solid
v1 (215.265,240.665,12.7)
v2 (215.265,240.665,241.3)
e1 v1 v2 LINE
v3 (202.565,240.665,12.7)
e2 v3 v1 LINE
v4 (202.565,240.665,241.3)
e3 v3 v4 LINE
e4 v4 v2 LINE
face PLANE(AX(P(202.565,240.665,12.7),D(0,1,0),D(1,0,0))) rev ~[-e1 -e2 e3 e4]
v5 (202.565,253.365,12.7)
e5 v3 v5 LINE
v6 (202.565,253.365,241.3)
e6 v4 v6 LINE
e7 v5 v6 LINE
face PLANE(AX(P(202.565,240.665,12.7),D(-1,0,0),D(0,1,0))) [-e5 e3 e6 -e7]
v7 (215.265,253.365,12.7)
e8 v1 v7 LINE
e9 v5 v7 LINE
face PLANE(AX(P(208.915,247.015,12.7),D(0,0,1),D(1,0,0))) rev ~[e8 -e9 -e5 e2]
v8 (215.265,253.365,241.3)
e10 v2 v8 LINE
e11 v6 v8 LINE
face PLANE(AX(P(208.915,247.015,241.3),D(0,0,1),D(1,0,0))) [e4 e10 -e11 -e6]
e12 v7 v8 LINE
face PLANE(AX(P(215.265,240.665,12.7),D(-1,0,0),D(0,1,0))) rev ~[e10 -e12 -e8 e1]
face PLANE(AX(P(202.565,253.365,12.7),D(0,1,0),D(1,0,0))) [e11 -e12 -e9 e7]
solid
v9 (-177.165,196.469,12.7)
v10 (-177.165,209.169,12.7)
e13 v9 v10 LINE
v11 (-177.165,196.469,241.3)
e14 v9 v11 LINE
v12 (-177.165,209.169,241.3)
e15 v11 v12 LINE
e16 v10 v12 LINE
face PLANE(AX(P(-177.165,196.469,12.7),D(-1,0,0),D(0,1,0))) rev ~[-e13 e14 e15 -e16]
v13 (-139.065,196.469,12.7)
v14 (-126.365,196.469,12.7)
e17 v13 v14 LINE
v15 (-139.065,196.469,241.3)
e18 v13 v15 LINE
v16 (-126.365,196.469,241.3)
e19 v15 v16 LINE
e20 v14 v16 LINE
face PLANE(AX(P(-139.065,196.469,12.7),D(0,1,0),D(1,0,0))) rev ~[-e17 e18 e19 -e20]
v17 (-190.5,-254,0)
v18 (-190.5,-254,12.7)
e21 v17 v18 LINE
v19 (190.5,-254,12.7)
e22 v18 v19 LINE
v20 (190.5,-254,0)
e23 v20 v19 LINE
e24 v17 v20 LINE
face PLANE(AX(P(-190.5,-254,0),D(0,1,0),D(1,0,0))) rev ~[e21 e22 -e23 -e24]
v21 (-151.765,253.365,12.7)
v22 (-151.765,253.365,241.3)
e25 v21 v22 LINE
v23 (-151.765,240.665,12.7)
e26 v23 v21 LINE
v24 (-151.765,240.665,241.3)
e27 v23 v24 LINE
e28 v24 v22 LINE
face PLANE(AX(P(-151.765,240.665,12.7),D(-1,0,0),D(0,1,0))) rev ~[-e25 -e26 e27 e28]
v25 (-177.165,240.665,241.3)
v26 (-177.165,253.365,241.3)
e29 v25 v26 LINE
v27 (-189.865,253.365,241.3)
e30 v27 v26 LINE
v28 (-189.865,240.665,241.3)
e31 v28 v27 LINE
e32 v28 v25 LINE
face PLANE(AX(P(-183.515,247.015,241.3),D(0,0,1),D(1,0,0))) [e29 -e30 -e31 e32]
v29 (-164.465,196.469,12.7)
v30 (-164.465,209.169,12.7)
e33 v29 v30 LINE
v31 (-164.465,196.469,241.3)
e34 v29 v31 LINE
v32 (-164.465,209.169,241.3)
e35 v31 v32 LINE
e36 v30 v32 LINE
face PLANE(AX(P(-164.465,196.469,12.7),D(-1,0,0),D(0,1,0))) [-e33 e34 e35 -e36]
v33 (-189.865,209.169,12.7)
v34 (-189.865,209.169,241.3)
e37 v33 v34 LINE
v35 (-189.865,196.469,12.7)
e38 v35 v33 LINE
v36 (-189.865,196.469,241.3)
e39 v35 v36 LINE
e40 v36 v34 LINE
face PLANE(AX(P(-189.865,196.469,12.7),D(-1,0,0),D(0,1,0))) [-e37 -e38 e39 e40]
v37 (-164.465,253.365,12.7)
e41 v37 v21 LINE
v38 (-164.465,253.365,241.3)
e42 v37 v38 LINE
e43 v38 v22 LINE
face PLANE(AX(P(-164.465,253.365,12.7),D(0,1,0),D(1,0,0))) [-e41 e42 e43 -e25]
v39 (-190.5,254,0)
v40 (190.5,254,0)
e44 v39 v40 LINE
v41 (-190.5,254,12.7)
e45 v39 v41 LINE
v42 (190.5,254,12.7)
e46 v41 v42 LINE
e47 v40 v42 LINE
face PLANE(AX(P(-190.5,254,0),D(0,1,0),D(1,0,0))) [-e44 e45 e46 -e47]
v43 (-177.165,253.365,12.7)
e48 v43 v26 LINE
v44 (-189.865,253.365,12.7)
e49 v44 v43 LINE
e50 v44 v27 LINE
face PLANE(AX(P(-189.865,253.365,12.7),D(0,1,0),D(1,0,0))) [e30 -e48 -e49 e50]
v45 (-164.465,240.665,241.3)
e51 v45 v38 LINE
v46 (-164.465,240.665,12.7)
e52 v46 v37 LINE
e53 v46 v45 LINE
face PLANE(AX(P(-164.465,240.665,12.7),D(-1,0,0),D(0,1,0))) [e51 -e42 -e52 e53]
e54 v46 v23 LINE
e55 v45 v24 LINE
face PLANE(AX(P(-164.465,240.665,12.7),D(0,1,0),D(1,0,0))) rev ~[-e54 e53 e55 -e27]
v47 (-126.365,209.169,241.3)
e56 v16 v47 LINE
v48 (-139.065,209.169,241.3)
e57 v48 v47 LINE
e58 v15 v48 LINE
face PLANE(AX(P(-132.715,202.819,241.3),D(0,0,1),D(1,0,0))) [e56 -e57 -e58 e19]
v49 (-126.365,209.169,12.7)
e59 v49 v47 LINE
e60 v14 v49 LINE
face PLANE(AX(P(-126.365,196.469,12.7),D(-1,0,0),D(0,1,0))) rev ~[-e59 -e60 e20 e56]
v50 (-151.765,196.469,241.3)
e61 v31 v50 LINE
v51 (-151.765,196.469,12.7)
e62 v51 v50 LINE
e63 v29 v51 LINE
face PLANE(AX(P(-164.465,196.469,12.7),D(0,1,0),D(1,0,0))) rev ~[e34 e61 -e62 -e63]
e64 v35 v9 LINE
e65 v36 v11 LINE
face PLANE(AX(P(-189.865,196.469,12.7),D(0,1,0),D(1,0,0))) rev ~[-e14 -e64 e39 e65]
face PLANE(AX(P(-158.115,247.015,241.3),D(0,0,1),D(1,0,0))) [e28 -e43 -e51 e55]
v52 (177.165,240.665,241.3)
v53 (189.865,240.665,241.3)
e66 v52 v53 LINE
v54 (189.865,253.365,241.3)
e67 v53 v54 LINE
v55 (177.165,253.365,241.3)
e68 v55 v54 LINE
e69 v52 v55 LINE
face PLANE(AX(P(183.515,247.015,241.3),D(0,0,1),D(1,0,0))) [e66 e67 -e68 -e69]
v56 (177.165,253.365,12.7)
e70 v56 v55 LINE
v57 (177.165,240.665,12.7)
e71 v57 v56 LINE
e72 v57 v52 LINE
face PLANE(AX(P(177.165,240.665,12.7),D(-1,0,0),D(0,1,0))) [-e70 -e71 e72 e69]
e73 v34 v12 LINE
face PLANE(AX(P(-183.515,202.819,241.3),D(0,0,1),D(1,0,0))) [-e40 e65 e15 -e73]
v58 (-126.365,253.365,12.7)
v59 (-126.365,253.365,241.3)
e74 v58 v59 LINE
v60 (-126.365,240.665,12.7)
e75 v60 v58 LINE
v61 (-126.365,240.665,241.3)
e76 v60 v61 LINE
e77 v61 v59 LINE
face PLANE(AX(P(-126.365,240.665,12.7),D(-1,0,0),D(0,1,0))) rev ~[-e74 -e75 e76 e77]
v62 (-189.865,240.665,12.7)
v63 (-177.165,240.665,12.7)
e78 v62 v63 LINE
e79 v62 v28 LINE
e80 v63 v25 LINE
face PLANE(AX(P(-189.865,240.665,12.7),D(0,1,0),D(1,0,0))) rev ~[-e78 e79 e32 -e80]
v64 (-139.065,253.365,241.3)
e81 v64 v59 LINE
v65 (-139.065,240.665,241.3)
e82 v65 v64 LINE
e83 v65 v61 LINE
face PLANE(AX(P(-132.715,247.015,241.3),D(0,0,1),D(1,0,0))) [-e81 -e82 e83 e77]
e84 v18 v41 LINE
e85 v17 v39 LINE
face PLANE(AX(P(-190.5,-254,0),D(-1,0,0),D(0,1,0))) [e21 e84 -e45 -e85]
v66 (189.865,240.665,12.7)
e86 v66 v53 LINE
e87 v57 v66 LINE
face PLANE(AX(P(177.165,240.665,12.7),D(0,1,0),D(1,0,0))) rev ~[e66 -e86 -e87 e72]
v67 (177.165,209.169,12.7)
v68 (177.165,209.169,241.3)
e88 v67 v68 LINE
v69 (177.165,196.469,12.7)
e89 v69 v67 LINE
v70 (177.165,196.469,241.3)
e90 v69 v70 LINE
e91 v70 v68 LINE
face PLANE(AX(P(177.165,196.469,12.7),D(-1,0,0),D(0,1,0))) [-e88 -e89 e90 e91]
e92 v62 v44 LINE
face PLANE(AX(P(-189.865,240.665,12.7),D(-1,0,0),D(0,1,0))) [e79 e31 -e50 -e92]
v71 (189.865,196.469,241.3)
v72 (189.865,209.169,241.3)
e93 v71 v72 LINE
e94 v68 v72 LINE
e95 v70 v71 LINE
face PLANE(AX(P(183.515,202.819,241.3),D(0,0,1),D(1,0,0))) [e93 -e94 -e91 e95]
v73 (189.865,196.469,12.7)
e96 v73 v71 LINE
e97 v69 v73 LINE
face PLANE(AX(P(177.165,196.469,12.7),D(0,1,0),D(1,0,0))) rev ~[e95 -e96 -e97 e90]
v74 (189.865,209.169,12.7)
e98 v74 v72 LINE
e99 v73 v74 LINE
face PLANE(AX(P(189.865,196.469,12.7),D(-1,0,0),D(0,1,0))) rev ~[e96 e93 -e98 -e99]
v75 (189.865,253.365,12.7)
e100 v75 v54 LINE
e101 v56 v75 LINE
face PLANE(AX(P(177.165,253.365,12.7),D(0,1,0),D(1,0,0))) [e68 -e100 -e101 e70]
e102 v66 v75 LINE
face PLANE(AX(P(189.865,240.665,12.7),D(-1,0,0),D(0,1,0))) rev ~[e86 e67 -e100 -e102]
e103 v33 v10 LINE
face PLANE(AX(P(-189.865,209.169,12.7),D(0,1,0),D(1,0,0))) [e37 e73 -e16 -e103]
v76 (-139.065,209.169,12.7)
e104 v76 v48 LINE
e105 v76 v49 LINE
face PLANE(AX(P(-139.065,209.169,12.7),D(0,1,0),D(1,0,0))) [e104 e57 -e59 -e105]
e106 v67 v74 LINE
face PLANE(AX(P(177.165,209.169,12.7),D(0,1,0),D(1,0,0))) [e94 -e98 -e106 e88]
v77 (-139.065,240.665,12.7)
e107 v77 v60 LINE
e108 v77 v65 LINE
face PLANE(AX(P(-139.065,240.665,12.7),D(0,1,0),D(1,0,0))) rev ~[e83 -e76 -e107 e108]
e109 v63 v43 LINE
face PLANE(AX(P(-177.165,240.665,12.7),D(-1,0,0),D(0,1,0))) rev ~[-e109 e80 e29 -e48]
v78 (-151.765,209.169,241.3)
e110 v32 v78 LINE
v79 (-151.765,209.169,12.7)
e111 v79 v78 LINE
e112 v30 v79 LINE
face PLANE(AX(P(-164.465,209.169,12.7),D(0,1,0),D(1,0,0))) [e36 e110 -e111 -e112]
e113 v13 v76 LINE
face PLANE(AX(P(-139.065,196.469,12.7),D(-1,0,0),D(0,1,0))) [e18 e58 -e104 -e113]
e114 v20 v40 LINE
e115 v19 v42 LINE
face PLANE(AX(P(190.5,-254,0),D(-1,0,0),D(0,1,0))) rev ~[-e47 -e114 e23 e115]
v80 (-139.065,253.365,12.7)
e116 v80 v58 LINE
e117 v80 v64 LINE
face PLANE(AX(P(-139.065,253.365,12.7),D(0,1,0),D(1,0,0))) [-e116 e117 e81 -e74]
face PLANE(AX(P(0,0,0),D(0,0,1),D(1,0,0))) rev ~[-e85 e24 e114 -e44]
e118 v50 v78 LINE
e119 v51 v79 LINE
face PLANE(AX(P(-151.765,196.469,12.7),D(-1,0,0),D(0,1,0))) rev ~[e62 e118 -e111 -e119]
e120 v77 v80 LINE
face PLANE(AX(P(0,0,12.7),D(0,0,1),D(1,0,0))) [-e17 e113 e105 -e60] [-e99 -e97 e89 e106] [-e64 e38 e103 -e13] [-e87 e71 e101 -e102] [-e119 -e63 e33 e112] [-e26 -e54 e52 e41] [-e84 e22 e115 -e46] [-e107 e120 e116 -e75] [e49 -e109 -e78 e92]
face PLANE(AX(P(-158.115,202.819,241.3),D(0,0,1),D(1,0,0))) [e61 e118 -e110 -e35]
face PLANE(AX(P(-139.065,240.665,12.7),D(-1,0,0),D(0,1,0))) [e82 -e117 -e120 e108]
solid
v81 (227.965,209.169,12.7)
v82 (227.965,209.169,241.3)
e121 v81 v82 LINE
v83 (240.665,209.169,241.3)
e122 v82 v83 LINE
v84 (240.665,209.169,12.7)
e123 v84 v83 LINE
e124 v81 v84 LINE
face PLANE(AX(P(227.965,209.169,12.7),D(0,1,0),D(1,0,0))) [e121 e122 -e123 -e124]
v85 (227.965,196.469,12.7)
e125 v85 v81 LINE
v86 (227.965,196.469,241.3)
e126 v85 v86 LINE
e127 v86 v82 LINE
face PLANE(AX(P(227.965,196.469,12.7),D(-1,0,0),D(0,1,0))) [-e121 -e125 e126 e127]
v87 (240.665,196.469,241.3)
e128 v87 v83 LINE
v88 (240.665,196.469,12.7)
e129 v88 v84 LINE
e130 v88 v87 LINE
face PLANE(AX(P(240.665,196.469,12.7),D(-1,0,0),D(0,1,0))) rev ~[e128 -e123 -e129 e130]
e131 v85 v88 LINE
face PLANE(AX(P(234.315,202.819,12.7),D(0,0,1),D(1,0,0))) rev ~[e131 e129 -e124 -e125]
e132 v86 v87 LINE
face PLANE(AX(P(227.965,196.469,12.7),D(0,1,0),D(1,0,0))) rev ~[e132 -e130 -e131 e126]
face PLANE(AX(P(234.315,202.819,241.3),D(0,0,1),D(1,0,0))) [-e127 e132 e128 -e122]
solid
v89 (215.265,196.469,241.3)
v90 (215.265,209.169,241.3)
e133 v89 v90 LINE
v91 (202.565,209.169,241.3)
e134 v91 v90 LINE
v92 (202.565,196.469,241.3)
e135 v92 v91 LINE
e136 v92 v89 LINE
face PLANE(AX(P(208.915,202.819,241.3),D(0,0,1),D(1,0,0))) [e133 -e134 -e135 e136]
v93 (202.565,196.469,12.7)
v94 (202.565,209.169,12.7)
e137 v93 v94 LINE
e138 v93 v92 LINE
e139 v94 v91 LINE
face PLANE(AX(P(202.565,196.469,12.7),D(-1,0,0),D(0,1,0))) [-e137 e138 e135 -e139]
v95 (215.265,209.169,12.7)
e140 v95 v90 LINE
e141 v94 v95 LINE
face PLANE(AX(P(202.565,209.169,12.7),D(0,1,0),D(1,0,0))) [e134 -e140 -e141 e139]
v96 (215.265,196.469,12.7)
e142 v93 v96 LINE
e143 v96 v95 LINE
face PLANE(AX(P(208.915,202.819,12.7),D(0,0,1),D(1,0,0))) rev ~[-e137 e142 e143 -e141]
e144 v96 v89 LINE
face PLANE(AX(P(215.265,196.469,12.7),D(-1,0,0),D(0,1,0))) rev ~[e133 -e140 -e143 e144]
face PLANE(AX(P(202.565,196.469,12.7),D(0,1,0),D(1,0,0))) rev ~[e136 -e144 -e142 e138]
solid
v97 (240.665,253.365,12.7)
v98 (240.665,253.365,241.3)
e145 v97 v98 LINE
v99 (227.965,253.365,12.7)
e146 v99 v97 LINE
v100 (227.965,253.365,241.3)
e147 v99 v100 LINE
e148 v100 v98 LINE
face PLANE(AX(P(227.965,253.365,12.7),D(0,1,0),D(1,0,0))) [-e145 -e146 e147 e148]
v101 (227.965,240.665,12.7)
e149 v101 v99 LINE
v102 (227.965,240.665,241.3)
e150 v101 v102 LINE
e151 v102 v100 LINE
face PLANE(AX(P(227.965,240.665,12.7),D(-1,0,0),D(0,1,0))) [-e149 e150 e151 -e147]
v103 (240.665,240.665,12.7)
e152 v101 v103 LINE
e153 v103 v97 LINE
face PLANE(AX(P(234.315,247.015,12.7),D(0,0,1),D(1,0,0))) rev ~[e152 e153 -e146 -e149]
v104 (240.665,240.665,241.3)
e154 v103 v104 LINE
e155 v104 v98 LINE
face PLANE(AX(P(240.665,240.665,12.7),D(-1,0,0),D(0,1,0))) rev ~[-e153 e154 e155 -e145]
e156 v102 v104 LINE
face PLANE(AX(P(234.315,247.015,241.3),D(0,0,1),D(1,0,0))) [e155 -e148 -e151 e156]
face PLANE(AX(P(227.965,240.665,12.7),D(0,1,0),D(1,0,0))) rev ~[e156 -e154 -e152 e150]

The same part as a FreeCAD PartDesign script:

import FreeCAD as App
import Part
import Sketcher
Q = App.Units.Quantity

doc = App.newDocument("Part")
body = doc.addObject("PartDesign::Body", "Body")
body.AllowCompound = True

# Sketch on XY plane
sketch1 = body.newObject("Sketcher::SketchObject", "Sketch")
sketch1.AttachmentSupport = (doc.getObject("XY_Plane"), [""])
sketch1.MapMode = "FlatFace"
sketch1.addGeometry([
    Part.LineSegment(App.Vector(-190, 254, 0), App.Vector(-190, -254, 0)),
    Part.LineSegment(App.Vector(-190, -254, 0), App.Vector(190, -254, 0)),
    Part.LineSegment(App.Vector(190, -254, 0), App.Vector(190, 254, 0)),
    Part.LineSegment(App.Vector(190, 254, 0), App.Vector(-190, 254, 0)),
], False)
sketch1.addConstraint([
    Sketcher.Constraint("Coincident", 0, 2, 1, 1),
    Sketcher.Constraint("Coincident", 1, 2, 2, 1),
    Sketcher.Constraint("Coincident", 2, 2, 3, 1),
    Sketcher.Constraint("Coincident", 3, 2, 0, 1),
    Sketcher.Constraint("Vertical", 0),
    Sketcher.Constraint("Horizontal", 1),
    Sketcher.Constraint("Vertical", 2),
    Sketcher.Constraint("Horizontal", 3),
    Sketcher.Constraint("Symmetric", 0, 2, 2, 2, -1, 1),
    Sketcher.Constraint("DistanceX", 1, 1, 1, 2, Q("15 in")),
    Sketcher.Constraint("DistanceY", 0, 2, 0, 1, Q("20 in")),
])
pad1 = body.newObject("PartDesign::Pad", "Pad")
pad1.Profile = sketch1
pad1.Length = Q("0.5 in")

# Sketch on XY plane
sketch2 = body.newObject("Sketcher::SketchObject", "Sketch001")
sketch2.AttachmentSupport = (doc.getObject("XY_Plane"), [""])
sketch2.MapMode = "FlatFace"
sketch2.AttachmentOffset = App.Placement(App.Vector(0, 0, 0.5 * 25.4), App.Rotation())
sketch2.addGeometry([
    Part.LineSegment(App.Vector(-190, 253, 0), App.Vector(-190, 241, 0)),  # 0
    Part.LineSegment(App.Vector(-190, 241, 0), App.Vector(-177, 241, 0)),  # 1
    Part.LineSegment(App.Vector(-177, 241, 0), App.Vector(-177, 253, 0)),  # 2
    Part.LineSegment(App.Vector(-177, 253, 0), App.Vector(-190, 253, 0)),  # 3
    Part.LineSegment(App.Vector(177, 253, 0), App.Vector(177, 241, 0)),  # 4
    Part.LineSegment(App.Vector(177, 241, 0), App.Vector(190, 241, 0)),  # 5
    Part.LineSegment(App.Vector(190, 241, 0), App.Vector(190, 253, 0)),  # 6
    Part.LineSegment(App.Vector(190, 253, 0), App.Vector(177, 253, 0)),  # 7
    Part.LineSegment(App.Vector(-190, 209, 0), App.Vector(-190, 196, 0)),  # 8
    Part.LineSegment(App.Vector(-190, 196, 0), App.Vector(-177, 196, 0)),  # 9
    Part.LineSegment(App.Vector(-177, 196, 0), App.Vector(-177, 209, 0)),  # 10
    Part.LineSegment(App.Vector(-177, 209, 0), App.Vector(-190, 209, 0)),  # 11
    Part.LineSegment(App.Vector(177, 209, 0), App.Vector(177, 196, 0)),  # 12
    Part.LineSegment(App.Vector(177, 196, 0), App.Vector(190, 196, 0)),  # 13
    Part.LineSegment(App.Vector(190, 196, 0), App.Vector(190, 209, 0)),  # 14
    Part.LineSegment(App.Vector(190, 209, 0), App.Vector(177, 209, 0)),  # 15
    Part.LineSegment(App.Vector(-164, 253, 0), App.Vector(-164, 241, 0)),  # 16
    Part.LineSegment(App.Vector(-164, 241, 0), App.Vector(-152, 241, 0)),  # 17
    Part.LineSegment(App.Vector(-152, 241, 0), App.Vector(-152, 253, 0)),  # 18
    Part.LineSegment(App.Vector(-152, 253, 0), App.Vector(-164, 253, 0)),  # 19
    Part.LineSegment(App.Vector(203, 253, 0), App.Vector(203, 241, 0)),  # 20
    Part.LineSegment(App.Vector(203, 241, 0), App.Vector(215, 241, 0)),  # 21
    Part.LineSegment(App.Vector(215, 241, 0), App.Vector(215, 253, 0)),  # 22
    Part.LineSegment(App.Vector(215, 253, 0), App.Vector(203, 253, 0)),  # 23
    Part.LineSegment(App.Vector(-164, 209, 0), App.Vector(-164, 196, 0)),  # 24
    Part.LineSegment(App.Vector(-164, 196, 0), App.Vector(-152, 196, 0)),  # 25
    Part.LineSegment(App.Vector(-152, 196, 0), App.Vector(-152, 209, 0)),  # 26
    Part.LineSegment(App.Vector(-152, 209, 0), App.Vector(-164, 209, 0)),  # 27
    Part.LineSegment(App.Vector(203, 209, 0), App.Vector(203, 196, 0)),  # 28
    Part.LineSegment(App.Vector(203, 196, 0), App.Vector(215, 196, 0)),  # 29
    Part.LineSegment(App.Vector(215, 196, 0), App.Vector(215, 209, 0)),  # 30
    Part.LineSegment(App.Vector(215, 209, 0), App.Vector(203, 209, 0)),  # 31
    Part.LineSegment(App.Vector(-139, 253, 0), App.Vector(-139, 241, 0)),  # 32
    Part.LineSegment(App.Vector(-139, 241, 0), App.Vector(-126, 241, 0)),  # 33
    Part.LineSegment(App.Vector(-126, 241, 0), App.Vector(-126, 253, 0)),  # 34
    Part.LineSegment(App.Vector(-126, 253, 0), App.Vector(-139, 253, 0)),  # 35
    Part.LineSegment(App.Vector(228, 253, 0), App.Vector(228, 241, 0)),  # 36
    Part.LineSegment(App.Vector(228, 241, 0), App.Vector(241, 241, 0)),  # 37
    Part.LineSegment(App.Vector(241, 241, 0), App.Vector(241, 253, 0)),  # 38
    Part.LineSegment(App.Vector(241, 253, 0), App.Vector(228, 253, 0)),  # 39
    Part.LineSegment(App.Vector(-139, 209, 0), App.Vector(-139, 196, 0)),  # 40
    Part.LineSegment(App.Vector(-139, 196, 0), App.Vector(-126, 196, 0)),  # 41
    Part.LineSegment(App.Vector(-126, 196, 0), App.Vector(-126, 209, 0)),  # 42
    Part.LineSegment(App.Vector(-126, 209, 0), App.Vector(-139, 209, 0)),  # 43
    Part.LineSegment(App.Vector(228, 209, 0), App.Vector(228, 196, 0)),  # 44
    Part.LineSegment(App.Vector(228, 196, 0), App.Vector(241, 196, 0)),  # 45
    Part.LineSegment(App.Vector(241, 196, 0), App.Vector(241, 209, 0)),  # 46
    Part.LineSegment(App.Vector(241, 209, 0), App.Vector(228, 209, 0)),  # 47
], False)
sketch2.addConstraint([
    Sketcher.Constraint("Coincident", 0, 2, 1, 1),
    Sketcher.Constraint("Coincident", 1, 2, 2, 1),
    Sketcher.Constraint("Coincident", 2, 2, 3, 1),
    Sketcher.Constraint("Coincident", 3, 2, 0, 1),
    Sketcher.Constraint("Coincident", 4, 2, 5, 1),
    Sketcher.Constraint("Coincident", 5, 2, 6, 1),
    Sketcher.Constraint("Coincident", 6, 2, 7, 1),
    Sketcher.Constraint("Coincident", 7, 2, 4, 1),
    Sketcher.Constraint("Coincident", 8, 2, 9, 1),
    Sketcher.Constraint("Coincident", 9, 2, 10, 1),
    Sketcher.Constraint("Coincident", 10, 2, 11, 1),
    Sketcher.Constraint("Coincident", 11, 2, 8, 1),
    Sketcher.Constraint("Coincident", 12, 2, 13, 1),
    Sketcher.Constraint("Coincident", 13, 2, 14, 1),
    Sketcher.Constraint("Coincident", 14, 2, 15, 1),
    Sketcher.Constraint("Coincident", 15, 2, 12, 1),
    Sketcher.Constraint("Coincident", 16, 2, 17, 1),
    Sketcher.Constraint("Coincident", 17, 2, 18, 1),
    Sketcher.Constraint("Coincident", 18, 2, 19, 1),
    Sketcher.Constraint("Coincident", 19, 2, 16, 1),
    Sketcher.Constraint("Coincident", 20, 2, 21, 1),
    Sketcher.Constraint("Coincident", 21, 2, 22, 1),
    Sketcher.Constraint("Coincident", 22, 2, 23, 1),
    Sketcher.Constraint("Coincident", 23, 2, 20, 1),
    Sketcher.Constraint("Coincident", 24, 2, 25, 1),
    Sketcher.Constraint("Coincident", 25, 2, 26, 1),
    Sketcher.Constraint("Coincident", 26, 2, 27, 1),
    Sketcher.Constraint("Coincident", 27, 2, 24, 1),
    Sketcher.Constraint("Coincident", 28, 2, 29, 1),
    Sketcher.Constraint("Coincident", 29, 2, 30, 1),
    Sketcher.Constraint("Coincident", 30, 2, 31, 1),
    Sketcher.Constraint("Coincident", 31, 2, 28, 1),
    Sketcher.Constraint("Coincident", 32, 2, 33, 1),
    Sketcher.Constraint("Coincident", 33, 2, 34, 1),
    Sketcher.Constraint("Coincident", 34, 2, 35, 1),
    Sketcher.Constraint("Coincident", 35, 2, 32, 1),
    Sketcher.Constraint("Coincident", 36, 2, 37, 1),
    Sketcher.Constraint("Coincident", 37, 2, 38, 1),
    Sketcher.Constraint("Coincident", 38, 2, 39, 1),
    Sketcher.Constraint("Coincident", 39, 2, 36, 1),
    Sketcher.Constraint("Coincident", 40, 2, 41, 1),
    Sketcher.Constraint("Coincident", 41, 2, 42, 1),
    Sketcher.Constraint("Coincident", 42, 2, 43, 1),
    Sketcher.Constraint("Coincident", 43, 2, 40, 1),
    Sketcher.Constraint("Coincident", 44, 2, 45, 1),
    Sketcher.Constraint("Coincident", 45, 2, 46, 1),
    Sketcher.Constraint("Coincident", 46, 2, 47, 1),
    Sketcher.Constraint("Coincident", 47, 2, 44, 1),
    Sketcher.Constraint("Vertical", 0),
    Sketcher.Constraint("Horizontal", 1),
    Sketcher.Constraint("Vertical", 2),
    Sketcher.Constraint("Horizontal", 3),
    Sketcher.Constraint("Vertical", 4),
    Sketcher.Constraint("Horizontal", 5),
    Sketcher.Constraint("Vertical", 6),
    Sketcher.Constraint("Horizontal", 7),
    Sketcher.Constraint("Vertical", 8),
    Sketcher.Constraint("Horizontal", 9),
    Sketcher.Constraint("Vertical", 10),
    Sketcher.Constraint("Horizontal", 11),
    Sketcher.Constraint("Vertical", 12),
    Sketcher.Constraint("Horizontal", 13),
    Sketcher.Constraint("Vertical", 14),
    Sketcher.Constraint("Horizontal", 15),
    Sketcher.Constraint("Vertical", 16),
    Sketcher.Constraint("Horizontal", 17),
    Sketcher.Constraint("Vertical", 18),
    Sketcher.Constraint("Horizontal", 19),
    Sketcher.Constraint("Vertical", 20),
    Sketcher.Constraint("Horizontal", 21),
    Sketcher.Constraint("Vertical", 22),
    Sketcher.Constraint("Horizontal", 23),
    Sketcher.Constraint("Vertical", 24),
    Sketcher.Constraint("Horizontal", 25),
    Sketcher.Constraint("Vertical", 26),
    Sketcher.Constraint("Horizontal", 27),
    Sketcher.Constraint("Vertical", 28),
    Sketcher.Constraint("Horizontal", 29),
    Sketcher.Constraint("Vertical", 30),
    Sketcher.Constraint("Horizontal", 31),
    Sketcher.Constraint("Vertical", 32),
    Sketcher.Constraint("Horizontal", 33),
    Sketcher.Constraint("Vertical", 34),
    Sketcher.Constraint("Horizontal", 35),
    Sketcher.Constraint("Vertical", 36),
    Sketcher.Constraint("Horizontal", 37),
    Sketcher.Constraint("Vertical", 38),
    Sketcher.Constraint("Horizontal", 39),
    Sketcher.Constraint("Vertical", 40),
    Sketcher.Constraint("Horizontal", 41),
    Sketcher.Constraint("Vertical", 42),
    Sketcher.Constraint("Horizontal", 43),
    Sketcher.Constraint("Vertical", 44),
    Sketcher.Constraint("Horizontal", 45),
    Sketcher.Constraint("Vertical", 46),
    Sketcher.Constraint("Horizontal", 47),
    Sketcher.Constraint("Symmetric", 1, 2, 4, 2, -2),
    Sketcher.Constraint("Symmetric", 3, 2, 6, 2, -2),
    Sketcher.Constraint("Symmetric", 9, 2, 12, 2, -2),
    Sketcher.Constraint("Symmetric", 11, 2, 14, 2, -2),
    Sketcher.Constraint("Horizontal", 5, 2, 16, 2),
    Sketcher.Constraint("Horizontal", 7, 2, 18, 2),
    Sketcher.Constraint("Horizontal", 17, 2, 20, 2),
    Sketcher.Constraint("Horizontal", 19, 2, 22, 2),
    Sketcher.Constraint("Horizontal", 13, 2, 24, 2),
    Sketcher.Constraint("Horizontal", 15, 2, 26, 2),
    Sketcher.Constraint("Horizontal", 25, 2, 28, 2),
    Sketcher.Constraint("Horizontal", 27, 2, 30, 2),
    Sketcher.Constraint("Horizontal", 21, 2, 32, 2),
    Sketcher.Constraint("Horizontal", 23, 2, 34, 2),
    Sketcher.Constraint("Horizontal", 33, 2, 36, 2),
    Sketcher.Constraint("Horizontal", 35, 2, 38, 2),
    Sketcher.Constraint("Horizontal", 29, 2, 40, 2),
    Sketcher.Constraint("Horizontal", 31, 2, 42, 2),
    Sketcher.Constraint("Horizontal", 41, 2, 44, 2),
    Sketcher.Constraint("Horizontal", 43, 2, 46, 2),
    Sketcher.Constraint("Vertical", 3, 2, 8, 2),
    Sketcher.Constraint("Vertical", 2, 2, 9, 2),
    Sketcher.Constraint("Vertical", 19, 2, 24, 2),
    Sketcher.Constraint("Vertical", 18, 2, 25, 2),
    Sketcher.Constraint("Vertical", 23, 2, 28, 2),
    Sketcher.Constraint("Vertical", 22, 2, 29, 2),
    Sketcher.Constraint("Vertical", 35, 2, 40, 2),
    Sketcher.Constraint("Vertical", 34, 2, 41, 2),
    Sketcher.Constraint("Vertical", 39, 2, 44, 2),
    Sketcher.Constraint("Vertical", 38, 2, 45, 2),
    Sketcher.Constraint("Equal", 15, 17),
    Sketcher.Constraint("Equal", 19, 21),
    Sketcher.Constraint("Equal", 31, 33),
    Sketcher.Constraint("Equal", 35, 37),
    Sketcher.Constraint("Equal", 47, 0),
    Sketcher.Constraint("Equal", 6, 8),
    Sketcher.Constraint("DistanceX", 1, 1, 1, 2, Q("0.5 in")),
    Sketcher.Constraint("DistanceX", 0, 2, 16, 2, Q("1 in")),
    Sketcher.Constraint("DistanceX", 4, 2, 20, 2, Q("1 in")),
    Sketcher.Constraint("DistanceX", 16, 2, 32, 2, Q("1 in")),
    Sketcher.Constraint("DistanceX", 20, 2, 36, 2, Q("1 in")),
    Sketcher.Constraint("DistanceX", 1, 2, 4, 2, Q("13.95 in")),
    Sketcher.Constraint("DistanceY", 8, 2, 0, 2, Q("1.74 in")),
    Sketcher.Constraint("DistanceY", -1, 1, 0, 2, Q("9.475 in")),
])
pad2 = body.newObject("PartDesign::Pad", "Pad001")
pad2.Profile = sketch2
pad2.Length = Q("9 in")

doc.recompute()
